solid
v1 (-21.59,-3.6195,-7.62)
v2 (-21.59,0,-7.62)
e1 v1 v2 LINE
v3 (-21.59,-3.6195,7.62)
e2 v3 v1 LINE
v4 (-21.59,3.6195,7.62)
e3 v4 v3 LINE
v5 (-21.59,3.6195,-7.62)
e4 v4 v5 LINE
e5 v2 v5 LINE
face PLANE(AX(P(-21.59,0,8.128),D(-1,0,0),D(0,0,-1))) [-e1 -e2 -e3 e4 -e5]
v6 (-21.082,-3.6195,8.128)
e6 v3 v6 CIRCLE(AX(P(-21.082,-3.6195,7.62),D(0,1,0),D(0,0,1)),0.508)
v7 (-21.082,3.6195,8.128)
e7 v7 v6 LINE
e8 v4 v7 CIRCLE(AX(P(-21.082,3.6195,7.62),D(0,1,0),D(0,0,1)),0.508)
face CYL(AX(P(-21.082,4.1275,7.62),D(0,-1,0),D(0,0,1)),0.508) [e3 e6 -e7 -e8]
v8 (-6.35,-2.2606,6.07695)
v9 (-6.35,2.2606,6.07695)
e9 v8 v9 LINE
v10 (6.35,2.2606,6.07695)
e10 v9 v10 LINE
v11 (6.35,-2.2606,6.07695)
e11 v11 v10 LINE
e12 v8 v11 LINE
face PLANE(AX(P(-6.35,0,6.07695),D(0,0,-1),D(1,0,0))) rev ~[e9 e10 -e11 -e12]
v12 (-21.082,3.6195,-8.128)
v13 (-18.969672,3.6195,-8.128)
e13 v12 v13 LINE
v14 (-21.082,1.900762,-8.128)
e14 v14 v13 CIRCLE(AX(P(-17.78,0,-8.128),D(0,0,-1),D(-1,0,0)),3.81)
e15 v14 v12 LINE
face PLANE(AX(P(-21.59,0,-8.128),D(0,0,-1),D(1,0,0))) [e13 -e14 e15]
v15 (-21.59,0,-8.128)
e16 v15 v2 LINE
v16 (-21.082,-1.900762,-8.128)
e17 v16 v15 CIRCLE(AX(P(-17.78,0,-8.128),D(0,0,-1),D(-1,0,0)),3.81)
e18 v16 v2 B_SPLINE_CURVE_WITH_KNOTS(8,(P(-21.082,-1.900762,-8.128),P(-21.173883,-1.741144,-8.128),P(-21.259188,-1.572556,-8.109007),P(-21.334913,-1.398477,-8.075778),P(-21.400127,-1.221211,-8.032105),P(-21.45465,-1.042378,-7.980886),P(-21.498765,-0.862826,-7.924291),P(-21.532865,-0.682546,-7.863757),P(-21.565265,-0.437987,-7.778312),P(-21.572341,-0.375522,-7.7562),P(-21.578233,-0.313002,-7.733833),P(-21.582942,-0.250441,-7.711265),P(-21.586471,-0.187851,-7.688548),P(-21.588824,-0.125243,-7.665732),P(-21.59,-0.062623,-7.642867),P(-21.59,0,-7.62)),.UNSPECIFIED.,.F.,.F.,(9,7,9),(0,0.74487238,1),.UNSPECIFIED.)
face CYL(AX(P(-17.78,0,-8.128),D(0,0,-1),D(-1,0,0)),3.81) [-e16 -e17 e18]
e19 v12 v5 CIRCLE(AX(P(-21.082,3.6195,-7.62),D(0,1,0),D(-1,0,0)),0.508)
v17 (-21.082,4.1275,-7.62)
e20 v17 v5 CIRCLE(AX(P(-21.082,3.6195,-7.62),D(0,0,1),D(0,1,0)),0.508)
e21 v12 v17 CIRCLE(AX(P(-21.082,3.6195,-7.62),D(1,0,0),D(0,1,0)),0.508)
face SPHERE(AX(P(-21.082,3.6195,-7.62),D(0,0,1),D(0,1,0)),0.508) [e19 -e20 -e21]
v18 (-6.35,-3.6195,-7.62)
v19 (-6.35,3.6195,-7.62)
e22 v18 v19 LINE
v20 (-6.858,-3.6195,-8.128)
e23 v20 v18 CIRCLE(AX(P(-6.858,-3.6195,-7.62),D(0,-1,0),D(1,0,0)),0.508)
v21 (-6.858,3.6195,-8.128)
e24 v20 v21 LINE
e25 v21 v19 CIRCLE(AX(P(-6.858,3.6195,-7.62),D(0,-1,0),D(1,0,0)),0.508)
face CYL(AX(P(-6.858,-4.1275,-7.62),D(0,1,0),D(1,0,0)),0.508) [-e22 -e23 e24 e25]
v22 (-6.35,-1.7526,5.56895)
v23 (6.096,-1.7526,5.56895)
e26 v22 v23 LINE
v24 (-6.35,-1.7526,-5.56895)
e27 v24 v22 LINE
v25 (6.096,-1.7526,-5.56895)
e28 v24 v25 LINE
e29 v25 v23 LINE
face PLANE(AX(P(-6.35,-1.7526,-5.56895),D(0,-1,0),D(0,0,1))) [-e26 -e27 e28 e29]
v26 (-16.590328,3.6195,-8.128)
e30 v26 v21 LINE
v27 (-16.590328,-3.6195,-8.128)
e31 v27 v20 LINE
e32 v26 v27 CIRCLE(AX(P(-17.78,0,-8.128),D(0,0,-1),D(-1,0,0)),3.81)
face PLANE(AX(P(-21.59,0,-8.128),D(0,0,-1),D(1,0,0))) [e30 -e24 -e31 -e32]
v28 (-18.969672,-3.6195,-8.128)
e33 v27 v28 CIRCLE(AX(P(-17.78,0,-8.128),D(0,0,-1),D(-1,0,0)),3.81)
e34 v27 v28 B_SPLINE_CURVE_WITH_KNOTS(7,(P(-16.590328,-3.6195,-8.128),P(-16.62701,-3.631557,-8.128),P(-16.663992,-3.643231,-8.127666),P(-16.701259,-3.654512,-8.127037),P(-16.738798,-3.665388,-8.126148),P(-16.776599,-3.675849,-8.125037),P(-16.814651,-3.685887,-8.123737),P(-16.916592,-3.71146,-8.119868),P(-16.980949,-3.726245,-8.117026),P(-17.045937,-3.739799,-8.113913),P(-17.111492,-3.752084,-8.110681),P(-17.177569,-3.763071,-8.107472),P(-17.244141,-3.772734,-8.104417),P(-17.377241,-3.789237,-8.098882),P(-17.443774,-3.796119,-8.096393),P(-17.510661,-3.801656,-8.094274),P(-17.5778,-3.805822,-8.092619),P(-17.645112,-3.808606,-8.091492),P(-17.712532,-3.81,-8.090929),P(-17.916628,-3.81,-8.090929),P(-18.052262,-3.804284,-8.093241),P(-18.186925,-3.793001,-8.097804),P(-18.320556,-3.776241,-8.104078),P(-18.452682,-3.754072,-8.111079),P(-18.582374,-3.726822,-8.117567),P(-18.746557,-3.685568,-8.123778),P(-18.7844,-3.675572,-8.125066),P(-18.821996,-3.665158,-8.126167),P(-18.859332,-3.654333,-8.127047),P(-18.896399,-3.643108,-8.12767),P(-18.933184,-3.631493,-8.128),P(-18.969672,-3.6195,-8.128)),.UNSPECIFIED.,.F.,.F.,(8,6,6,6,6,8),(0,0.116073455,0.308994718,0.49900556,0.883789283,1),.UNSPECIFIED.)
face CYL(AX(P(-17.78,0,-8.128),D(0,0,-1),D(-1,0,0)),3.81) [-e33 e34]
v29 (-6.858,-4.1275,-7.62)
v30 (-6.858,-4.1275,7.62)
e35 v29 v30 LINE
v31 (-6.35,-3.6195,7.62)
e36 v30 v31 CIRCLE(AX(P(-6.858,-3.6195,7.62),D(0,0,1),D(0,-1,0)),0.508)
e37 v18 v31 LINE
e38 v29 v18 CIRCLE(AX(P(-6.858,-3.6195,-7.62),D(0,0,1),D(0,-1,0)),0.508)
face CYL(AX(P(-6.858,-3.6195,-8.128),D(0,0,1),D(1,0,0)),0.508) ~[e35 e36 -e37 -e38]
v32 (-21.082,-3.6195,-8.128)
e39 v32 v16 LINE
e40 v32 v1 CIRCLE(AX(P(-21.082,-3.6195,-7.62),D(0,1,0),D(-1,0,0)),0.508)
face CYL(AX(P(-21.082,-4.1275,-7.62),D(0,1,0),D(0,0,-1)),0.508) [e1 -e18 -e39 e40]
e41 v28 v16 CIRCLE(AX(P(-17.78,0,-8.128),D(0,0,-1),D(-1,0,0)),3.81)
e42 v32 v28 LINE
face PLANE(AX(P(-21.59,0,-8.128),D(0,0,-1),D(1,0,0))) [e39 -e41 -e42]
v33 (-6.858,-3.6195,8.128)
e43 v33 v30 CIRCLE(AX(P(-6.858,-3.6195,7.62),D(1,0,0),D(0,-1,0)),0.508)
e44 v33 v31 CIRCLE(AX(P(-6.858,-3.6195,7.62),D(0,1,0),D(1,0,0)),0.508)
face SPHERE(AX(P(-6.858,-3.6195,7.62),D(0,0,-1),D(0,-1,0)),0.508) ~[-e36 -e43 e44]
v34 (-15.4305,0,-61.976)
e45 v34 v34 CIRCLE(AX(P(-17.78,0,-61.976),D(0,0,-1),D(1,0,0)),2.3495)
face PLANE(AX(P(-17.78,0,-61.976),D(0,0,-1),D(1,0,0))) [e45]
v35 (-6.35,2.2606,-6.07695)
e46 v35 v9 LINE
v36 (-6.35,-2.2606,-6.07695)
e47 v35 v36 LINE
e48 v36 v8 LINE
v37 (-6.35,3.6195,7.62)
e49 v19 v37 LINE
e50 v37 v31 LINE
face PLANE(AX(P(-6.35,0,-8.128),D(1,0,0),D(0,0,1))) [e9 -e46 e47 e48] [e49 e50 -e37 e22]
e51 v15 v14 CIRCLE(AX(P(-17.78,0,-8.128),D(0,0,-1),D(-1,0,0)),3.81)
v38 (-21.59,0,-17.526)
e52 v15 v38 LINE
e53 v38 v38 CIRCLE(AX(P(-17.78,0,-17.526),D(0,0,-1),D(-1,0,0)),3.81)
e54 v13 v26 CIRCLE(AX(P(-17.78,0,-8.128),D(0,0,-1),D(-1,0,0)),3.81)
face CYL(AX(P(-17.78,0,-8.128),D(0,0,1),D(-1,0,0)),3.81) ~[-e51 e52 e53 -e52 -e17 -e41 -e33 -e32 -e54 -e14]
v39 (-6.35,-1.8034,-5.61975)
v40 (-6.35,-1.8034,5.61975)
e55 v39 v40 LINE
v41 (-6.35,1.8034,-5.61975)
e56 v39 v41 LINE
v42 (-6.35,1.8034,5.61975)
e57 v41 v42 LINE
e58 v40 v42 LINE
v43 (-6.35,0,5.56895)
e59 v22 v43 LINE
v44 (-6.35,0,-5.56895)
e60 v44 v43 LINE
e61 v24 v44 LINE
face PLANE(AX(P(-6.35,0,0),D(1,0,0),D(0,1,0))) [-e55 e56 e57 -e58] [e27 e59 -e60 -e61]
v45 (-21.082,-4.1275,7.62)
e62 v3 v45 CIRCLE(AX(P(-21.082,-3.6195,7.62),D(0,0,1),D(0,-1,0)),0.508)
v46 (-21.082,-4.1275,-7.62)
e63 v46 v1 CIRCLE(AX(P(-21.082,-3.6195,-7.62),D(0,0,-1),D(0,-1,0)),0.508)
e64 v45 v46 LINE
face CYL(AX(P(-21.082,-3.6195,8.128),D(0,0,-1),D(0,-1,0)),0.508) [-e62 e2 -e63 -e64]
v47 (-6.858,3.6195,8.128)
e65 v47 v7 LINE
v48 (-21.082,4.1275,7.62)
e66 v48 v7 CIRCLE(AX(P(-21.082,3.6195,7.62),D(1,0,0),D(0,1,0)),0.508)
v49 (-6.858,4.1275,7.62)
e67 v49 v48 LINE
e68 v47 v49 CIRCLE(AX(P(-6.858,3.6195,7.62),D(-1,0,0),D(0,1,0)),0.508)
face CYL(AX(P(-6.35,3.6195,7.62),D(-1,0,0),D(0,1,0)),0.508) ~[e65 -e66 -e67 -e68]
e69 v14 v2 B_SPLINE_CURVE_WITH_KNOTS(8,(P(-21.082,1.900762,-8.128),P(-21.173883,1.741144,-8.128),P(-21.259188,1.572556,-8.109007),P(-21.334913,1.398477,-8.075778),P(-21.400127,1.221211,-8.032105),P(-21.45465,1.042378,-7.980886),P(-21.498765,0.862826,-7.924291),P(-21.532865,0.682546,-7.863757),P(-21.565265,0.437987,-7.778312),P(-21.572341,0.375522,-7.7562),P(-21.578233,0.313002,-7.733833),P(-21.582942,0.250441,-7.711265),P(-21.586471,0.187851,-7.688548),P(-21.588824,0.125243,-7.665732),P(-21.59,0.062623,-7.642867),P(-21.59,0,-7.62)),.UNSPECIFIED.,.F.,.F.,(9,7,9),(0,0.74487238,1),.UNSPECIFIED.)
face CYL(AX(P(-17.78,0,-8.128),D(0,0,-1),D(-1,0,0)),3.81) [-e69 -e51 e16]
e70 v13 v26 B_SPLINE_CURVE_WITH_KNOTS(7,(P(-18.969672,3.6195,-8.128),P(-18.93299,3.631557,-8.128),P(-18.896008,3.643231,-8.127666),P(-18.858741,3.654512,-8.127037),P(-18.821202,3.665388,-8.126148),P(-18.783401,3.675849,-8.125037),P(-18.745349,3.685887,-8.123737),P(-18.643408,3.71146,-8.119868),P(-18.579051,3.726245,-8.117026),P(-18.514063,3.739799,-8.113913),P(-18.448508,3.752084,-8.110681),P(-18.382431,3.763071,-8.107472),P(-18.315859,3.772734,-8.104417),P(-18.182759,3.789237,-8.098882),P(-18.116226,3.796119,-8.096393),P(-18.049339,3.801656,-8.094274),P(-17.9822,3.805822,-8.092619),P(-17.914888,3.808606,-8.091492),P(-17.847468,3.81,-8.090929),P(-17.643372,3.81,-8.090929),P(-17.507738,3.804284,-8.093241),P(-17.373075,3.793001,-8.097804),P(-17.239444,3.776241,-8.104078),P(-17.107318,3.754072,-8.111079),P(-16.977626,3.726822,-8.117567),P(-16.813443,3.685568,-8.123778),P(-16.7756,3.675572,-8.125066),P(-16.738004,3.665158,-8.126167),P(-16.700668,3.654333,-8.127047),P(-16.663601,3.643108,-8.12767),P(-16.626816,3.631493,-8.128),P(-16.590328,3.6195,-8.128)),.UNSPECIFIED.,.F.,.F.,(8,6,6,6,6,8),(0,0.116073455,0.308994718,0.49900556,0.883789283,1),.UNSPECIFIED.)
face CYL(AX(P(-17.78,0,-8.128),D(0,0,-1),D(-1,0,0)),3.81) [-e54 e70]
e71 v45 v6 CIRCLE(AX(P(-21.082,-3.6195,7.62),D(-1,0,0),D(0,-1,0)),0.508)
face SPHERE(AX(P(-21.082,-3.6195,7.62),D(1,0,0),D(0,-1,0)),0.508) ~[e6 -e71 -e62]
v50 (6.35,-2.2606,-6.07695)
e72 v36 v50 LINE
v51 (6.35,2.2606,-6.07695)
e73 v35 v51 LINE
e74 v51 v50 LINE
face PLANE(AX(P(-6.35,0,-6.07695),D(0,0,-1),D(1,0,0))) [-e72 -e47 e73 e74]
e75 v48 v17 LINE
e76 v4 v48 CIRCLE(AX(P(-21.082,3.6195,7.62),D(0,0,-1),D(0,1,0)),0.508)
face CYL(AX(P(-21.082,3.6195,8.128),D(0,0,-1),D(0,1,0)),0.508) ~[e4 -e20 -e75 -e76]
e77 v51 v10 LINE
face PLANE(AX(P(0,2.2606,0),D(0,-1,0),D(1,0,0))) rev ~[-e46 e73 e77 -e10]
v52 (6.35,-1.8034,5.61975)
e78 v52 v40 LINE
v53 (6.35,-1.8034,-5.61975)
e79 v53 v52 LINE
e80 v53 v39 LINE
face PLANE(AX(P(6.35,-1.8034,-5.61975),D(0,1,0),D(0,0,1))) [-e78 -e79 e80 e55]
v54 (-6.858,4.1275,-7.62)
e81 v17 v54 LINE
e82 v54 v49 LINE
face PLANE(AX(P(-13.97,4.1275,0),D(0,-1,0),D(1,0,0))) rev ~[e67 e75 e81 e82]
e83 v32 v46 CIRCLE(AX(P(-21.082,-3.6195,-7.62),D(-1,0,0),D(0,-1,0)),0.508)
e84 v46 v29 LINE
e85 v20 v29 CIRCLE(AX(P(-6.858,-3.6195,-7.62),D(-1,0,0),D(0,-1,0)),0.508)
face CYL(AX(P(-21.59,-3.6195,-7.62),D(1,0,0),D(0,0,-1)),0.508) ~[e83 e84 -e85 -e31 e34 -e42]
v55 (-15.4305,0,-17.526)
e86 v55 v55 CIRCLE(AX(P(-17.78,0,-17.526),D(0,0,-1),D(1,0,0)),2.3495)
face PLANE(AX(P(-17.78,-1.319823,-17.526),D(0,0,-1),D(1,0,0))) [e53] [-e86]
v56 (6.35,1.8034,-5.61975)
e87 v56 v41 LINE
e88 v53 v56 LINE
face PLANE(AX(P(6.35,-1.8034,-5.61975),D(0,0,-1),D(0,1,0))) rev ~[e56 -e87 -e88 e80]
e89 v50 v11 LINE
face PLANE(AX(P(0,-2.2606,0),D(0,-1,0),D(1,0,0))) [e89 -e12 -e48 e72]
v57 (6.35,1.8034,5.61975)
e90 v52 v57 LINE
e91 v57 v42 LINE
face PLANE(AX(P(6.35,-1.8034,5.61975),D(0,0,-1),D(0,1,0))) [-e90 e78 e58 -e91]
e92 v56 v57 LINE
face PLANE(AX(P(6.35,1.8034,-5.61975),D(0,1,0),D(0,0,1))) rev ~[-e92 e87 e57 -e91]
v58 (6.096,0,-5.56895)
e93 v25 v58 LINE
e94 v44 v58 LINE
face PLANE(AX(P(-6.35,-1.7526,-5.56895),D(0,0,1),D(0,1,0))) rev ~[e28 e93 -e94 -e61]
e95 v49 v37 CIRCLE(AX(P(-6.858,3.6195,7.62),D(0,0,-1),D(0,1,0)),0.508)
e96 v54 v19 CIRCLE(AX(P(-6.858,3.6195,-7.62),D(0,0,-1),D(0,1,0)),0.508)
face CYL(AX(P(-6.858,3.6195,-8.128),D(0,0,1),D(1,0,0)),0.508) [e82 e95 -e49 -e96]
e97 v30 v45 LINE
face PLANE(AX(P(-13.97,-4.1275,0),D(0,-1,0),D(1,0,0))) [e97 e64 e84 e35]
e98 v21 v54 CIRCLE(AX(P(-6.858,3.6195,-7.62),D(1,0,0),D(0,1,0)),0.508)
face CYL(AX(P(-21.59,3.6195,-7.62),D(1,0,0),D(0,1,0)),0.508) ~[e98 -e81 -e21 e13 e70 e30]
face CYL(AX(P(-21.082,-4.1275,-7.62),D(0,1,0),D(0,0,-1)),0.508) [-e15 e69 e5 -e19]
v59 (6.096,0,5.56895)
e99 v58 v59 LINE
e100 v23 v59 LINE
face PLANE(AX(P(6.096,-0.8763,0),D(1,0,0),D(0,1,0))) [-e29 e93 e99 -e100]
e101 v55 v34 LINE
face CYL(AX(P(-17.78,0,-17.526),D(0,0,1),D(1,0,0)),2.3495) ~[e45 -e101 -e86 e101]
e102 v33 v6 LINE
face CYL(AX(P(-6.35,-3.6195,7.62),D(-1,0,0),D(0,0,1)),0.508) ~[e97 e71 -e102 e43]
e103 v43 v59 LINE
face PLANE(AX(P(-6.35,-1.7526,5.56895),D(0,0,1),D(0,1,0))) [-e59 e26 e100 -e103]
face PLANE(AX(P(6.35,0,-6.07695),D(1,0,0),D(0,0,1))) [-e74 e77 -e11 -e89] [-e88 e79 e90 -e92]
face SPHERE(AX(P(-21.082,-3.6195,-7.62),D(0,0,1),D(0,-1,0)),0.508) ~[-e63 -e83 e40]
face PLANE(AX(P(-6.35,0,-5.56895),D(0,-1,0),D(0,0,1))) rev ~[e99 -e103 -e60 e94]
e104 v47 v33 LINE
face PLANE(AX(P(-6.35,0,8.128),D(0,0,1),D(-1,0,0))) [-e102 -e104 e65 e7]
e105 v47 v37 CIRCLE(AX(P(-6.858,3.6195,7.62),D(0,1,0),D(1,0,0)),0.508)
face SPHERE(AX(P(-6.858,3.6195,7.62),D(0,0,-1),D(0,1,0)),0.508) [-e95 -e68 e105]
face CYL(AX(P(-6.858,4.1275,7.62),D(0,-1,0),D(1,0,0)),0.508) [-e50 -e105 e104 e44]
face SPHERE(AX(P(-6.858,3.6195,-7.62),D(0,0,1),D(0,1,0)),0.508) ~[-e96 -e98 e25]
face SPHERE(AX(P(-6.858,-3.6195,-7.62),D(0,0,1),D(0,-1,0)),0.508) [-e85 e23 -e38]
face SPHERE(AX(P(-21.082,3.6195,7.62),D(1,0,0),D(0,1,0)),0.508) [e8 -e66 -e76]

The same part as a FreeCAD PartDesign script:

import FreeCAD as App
import Part
import Sketcher
Q = App.Units.Quantity


def edges_at(feature, points):
    """Names of the edges that pass closest to the given points."""
    edges = feature.Shape.Edges
    near = lambda p: min(range(len(edges)), key=lambda i: edges[i].distToShape(Part.Vertex(*p))[0])
    return sorted({f"Edge{near(p) + 1}" for p in points})

doc = App.newDocument("Part")
body = doc.addObject("PartDesign::Body", "Body")

# Sketch on XZ plane
sketch1 = body.newObject("Sketcher::SketchObject", "Sketch")
sketch1.AttachmentSupport = (doc.getObject("XZ_Plane"), [""])
sketch1.MapMode = "FlatFace"
sketch1.addGeometry(Part.LineSegment(App.Vector(-6, 6, 0), App.Vector(-6, -6, 0)), False)
sketch1.addGeometry(Part.LineSegment(App.Vector(-6, -6, 0), App.Vector(6, -6, 0)), False)
sketch1.addGeometry(Part.LineSegment(App.Vector(6, -6, 0), App.Vector(6, 6, 0)), False)
sketch1.addGeometry(Part.LineSegment(App.Vector(6, 6, 0), App.Vector(-6, 6, 0)), False)
sketch1.addConstraint(Sketcher.Constraint("Coincident", 0, 2, 1, 1))
sketch1.addConstraint(Sketcher.Constraint("Coincident", 1, 2, 2, 1))
sketch1.addConstraint(Sketcher.Constraint("Coincident", 2, 2, 3, 1))
sketch1.addConstraint(Sketcher.Constraint("Coincident", 3, 2, 0, 1))
sketch1.addConstraint(Sketcher.Constraint("Vertical", 0))
sketch1.addConstraint(Sketcher.Constraint("Horizontal", 1))
sketch1.addConstraint(Sketcher.Constraint("Vertical", 2))
sketch1.addConstraint(Sketcher.Constraint("Horizontal", 3))
sketch1.addConstraint(Sketcher.Constraint("Symmetric", 0, 2, 2, 2, -1, 1))
sketch1.addConstraint(Sketcher.Constraint("DistanceX", 1, 1, 1, 2, Q("0.5 in")))
sketch1.addConstraint(Sketcher.Constraint("DistanceY", 0, 2, 0, 1, Q("0.4785 in")))
pad1 = body.newObject("PartDesign::Pad", "Pad")
pad1.Profile = sketch1
pad1.Length = Q("0.178 in")
pad1.Midplane = True

# Sketch on XZ plane
sketch2 = body.newObject("Sketcher::SketchObject", "Sketch001")
sketch2.AttachmentSupport = (doc.getObject("XZ_Plane"), [""])
sketch2.MapMode = "FlatFace"
sketch2.addGeometry(Part.LineSegment(App.Vector(-6, -8, 0), App.Vector(-6, 8, 0)), False)
sketch2.addGeometry(Part.LineSegment(App.Vector(-6, 8, 0), App.Vector(-22, 8, 0)), False)
sketch2.addGeometry(Part.LineSegment(App.Vector(-22, 8, 0), App.Vector(-22, -8, 0)), False)
sketch2.addGeometry(Part.LineSegment(App.Vector(-22, -8, 0), App.Vector(-6, -8, 0)), False)
sketch2.addConstraint(Sketcher.Constraint("Coincident", 0, 2, 1, 1))
sketch2.addConstraint(Sketcher.Constraint("Coincident", 1, 2, 2, 1))
sketch2.addConstraint(Sketcher.Constraint("Coincident", 2, 2, 3, 1))
sketch2.addConstraint(Sketcher.Constraint("Coincident", 3, 2, 0, 1))
sketch2.addConstraint(Sketcher.Constraint("Vertical", 0))
sketch2.addConstraint(Sketcher.Constraint("Horizontal", 1))
sketch2.addConstraint(Sketcher.Constraint("Vertical", 2))
sketch2.addConstraint(Sketcher.Constraint("Horizontal", 3))
sketch2.addConstraint(Sketcher.Constraint("DistanceX", 1, 2, 1, 1, Q("0.6 in")))
sketch2.addConstraint(Sketcher.Constraint("DistanceY", 0, 1, 0, 2, Q("0.64 in")))
sketch2.addConstraint(Sketcher.Constraint("DistanceX", 0, 2, -1, 1, Q("0.25 in")))
sketch2.addConstraint(Sketcher.Constraint("DistanceY", -1, 1, 0, 2, Q("0.32 in")))
pad2 = body.newObject("PartDesign::Pad", "Pad001")
pad2.Profile = sketch2
pad2.Length = Q("0.325 in")
pad2.Midplane = True

# Sketch on YZ plane
sketch3 = body.newObject("Sketcher::SketchObject", "Sketch002")
sketch3.AttachmentSupport = (doc.getObject("YZ_Plane"), [""])
sketch3.MapMode = "FlatFace"
sketch3.AttachmentOffset = App.Placement(App.Vector(0, 0, 0.25 * 25.4), App.Rotation())
sketch3.addGeometry(Part.LineSegment(App.Vector(-1.8, 5.6, 0), App.Vector(-1.8, -5.6, 0)), False)
sketch3.addGeometry(Part.LineSegment(App.Vector(-1.8, -5.6, 0), App.Vector(1.8, -5.6, 0)), False)
sketch3.addGeometry(Part.LineSegment(App.Vector(1.8, -5.6, 0), App.Vector(1.8, 5.6, 0)), False)
sketch3.addGeometry(Part.LineSegment(App.Vector(1.8, 5.6, 0), App.Vector(-1.8, 5.6, 0)), False)
sketch3.addConstraint(Sketcher.Constraint("Coincident", 0, 2, 1, 1))
sketch3.addConstraint(Sketcher.Constraint("Coincident", 1, 2, 2, 1))
sketch3.addConstraint(Sketcher.Constraint("Coincident", 2, 2, 3, 1))
sketch3.addConstraint(Sketcher.Constraint("Coincident", 3, 2, 0, 1))
sketch3.addConstraint(Sketcher.Constraint("Vertical", 0))
sketch3.addConstraint(Sketcher.Constraint("Horizontal", 1))
sketch3.addConstraint(Sketcher.Constraint("Vertical", 2))
sketch3.addConstraint(Sketcher.Constraint("Horizontal", 3))
sketch3.addConstraint(Sketcher.Constraint("Symmetric", 0, 2, 2, 2, -1, 1))
sketch3.addConstraint(Sketcher.Constraint("DistanceX", 1, 1, 1, 2, Q("0.142 in")))
sketch3.addConstraint(Sketcher.Constraint("DistanceY", 0, 2, 0, 1, Q("0.4425 in")))
pocket1 = body.newObject("PartDesign::Pocket", "Pocket")
pocket1.Profile = sketch3
pocket1.Length = Q("0.5 in")

# Sketch on YZ plane
sketch4 = body.newObject("Sketcher::SketchObject", "Sketch003")
sketch4.AttachmentSupport = (doc.getObject("YZ_Plane"), [""])
sketch4.MapMode = "FlatFace"
sketch4.AttachmentOffset = App.Placement(App.Vector(0, 0, 0.25 * 25.4), App.Rotation())
sketch4.addGeometry(Part.LineSegment(App.Vector(-1.8, 5.6, 0), App.Vector(-1.8, -5.6, 0)), False)
sketch4.addGeometry(Part.LineSegment(App.Vector(-1.8, -5.6, 0), App.Vector(1.8, -5.6, 0)), False)
sketch4.addGeometry(Part.LineSegment(App.Vector(1.8, -5.6, 0), App.Vector(1.8, 5.6, 0)), False)
sketch4.addGeometry(Part.LineSegment(App.Vector(1.8, 5.6, 0), App.Vector(-1.8, 5.6, 0)), False)
sketch4.addConstraint(Sketcher.Constraint("Coincident", 0, 2, 1, 1))
sketch4.addConstraint(Sketcher.Constraint("Coincident", 1, 2, 2, 1))
sketch4.addConstraint(Sketcher.Constraint("Coincident", 2, 2, 3, 1))
sketch4.addConstraint(Sketcher.Constraint("Coincident", 3, 2, 0, 1))
sketch4.addConstraint(Sketcher.Constraint("Vertical", 0))
sketch4.addConstraint(Sketcher.Constraint("Horizontal", 1))
sketch4.addConstraint(Sketcher.Constraint("Vertical", 2))
sketch4.addConstraint(Sketcher.Constraint("Horizontal", 3))
sketch4.addConstraint(Sketcher.Constraint("Symmetric", 0, 2, 2, 2, -1, 1))
sketch4.addConstraint(Sketcher.Constraint("DistanceX", 1, 1, 1, 2, Q("0.142 in")))
sketch4.addConstraint(Sketcher.Constraint("DistanceY", 0, 2, 0, 1, Q("0.4425 in")))
pocket2 = body.newObject("PartDesign::Pocket", "Pocket001")
pocket2.Profile = sketch4
pocket2.Length = Q("0.5 in")
doc.recompute()

fillet = body.newObject("PartDesign::Fillet", "Fillet")
fillet.Base = (pocket2, edges_at(pocket2, [
    (-6.35, -4.128, 0),
    (-13.97, -4.128, 8.128),
    (-21.59, -4.128, 0),
    (-13.97, -4.128, -8.128),
    (-6.35, 4.128, 0),
    (-13.97, 4.128, 8.128),
    (-21.59, 4.128, 0),
    (-13.97, 4.128, -8.128),
    (-21.59, 0, -8.128),
    (-21.59, 0, 8.128),
    (-6.35, 0, 8.128),
    (-6.35, 0, -8.128),
]))
fillet.Radius = Q("0.02 in")

# Sketch on YZ plane
sketch5 = body.newObject("Sketcher::SketchObject", "Sketch004")
sketch5.AttachmentSupport = (doc.getObject("YZ_Plane"), [""])
sketch5.MapMode = "FlatFace"
sketch5.AttachmentOffset = App.Placement(App.Vector(0, 0, -0.25 * 25.4), App.Rotation())
sketch5.addGeometry(Part.LineSegment(App.Vector(-1.8, 5.6, 0), App.Vector(-1.8, -5.6, 0)), False)
sketch5.addGeometry(Part.LineSegment(App.Vector(-1.8, -5.6, 0), App.Vector(0, -5.6, 0)), False)
sketch5.addGeometry(Part.LineSegment(App.Vector(0, -5.6, 0), App.Vector(0, 5.6, 0)), False)
sketch5.addGeometry(Part.LineSegment(App.Vector(0, 5.6, 0), App.Vector(-1.8, 5.6, 0)), False)
sketch5.addConstraint(Sketcher.Constraint("Coincident", 0, 2, 1, 1))
sketch5.addConstraint(Sketcher.Constraint("Coincident", 1, 2, 2, 1))
sketch5.addConstraint(Sketcher.Constraint("Coincident", 2, 2, 3, 1))
sketch5.addConstraint(Sketcher.Constraint("Coincident", 3, 2, 0, 1))
sketch5.addConstraint(Sketcher.Constraint("Vertical", 0))
sketch5.addConstraint(Sketcher.Constraint("Horizontal", 1))
sketch5.addConstraint(Sketcher.Constraint("Vertical", 2))
sketch5.addConstraint(Sketcher.Constraint("Horizontal", 3))
sketch5.addConstraint(Sketcher.Constraint("Symmetric", 1, 2, 2, 2, -1, 1))
sketch5.addConstraint(Sketcher.Constraint("DistanceX", 1, 1, 1, 2, Q("0.069 in")))
sketch5.addConstraint(Sketcher.Constraint("DistanceY", 0, 2, 0, 1, Q("0.4385 in")))
pad3 = body.newObject("PartDesign::Pad", "Pad002")
pad3.Profile = sketch5
pad3.Length = Q("0.49 in")

# Sketch on XY plane
sketch6 = body.newObject("Sketcher::SketchObject", "Sketch005")
sketch6.AttachmentSupport = (doc.getObject("XY_Plane"), [""])
sketch6.MapMode = "FlatFace"
sketch6.AttachmentOffset = App.Placement(App.Vector(0, 0, -0.32 * 25.4), App.Rotation())
sketch6.addGeometry(Part.Circle(App.Vector(-17.8, 0, 0), App.Vector(0, 0, 1), 3.8), False)
sketch6.addConstraint(Sketcher.Constraint("PointOnObject", 0, 3, -1))
sketch6.addConstraint(Sketcher.Constraint("Diameter", 0, Q("0.3 in")))
sketch6.addConstraint(Sketcher.Constraint("DistanceX", 0, 3, -1, 1, Q("0.7 in")))
pad4 = body.newObject("PartDesign::Pad", "Pad003")
pad4.Profile = sketch6
pad4.Type = "TwoLengths"
pad4.Length = Q("0.37 in")
pad4.Length2 = Q("0.02 in")
pad4.Reversed = True

# Sketch on XY plane
sketch7 = body.newObject("Sketcher::SketchObject", "Sketch006")
sketch7.AttachmentSupport = (doc.getObject("XY_Plane"), [""])
sketch7.MapMode = "FlatFace"
sketch7.AttachmentOffset = App.Placement(App.Vector(0, 0, -0.69 * 25.4), App.Rotation())
sketch7.addGeometry(Part.Circle(App.Vector(-17.8, 0, 0), App.Vector(0, 0, 1), 2.3), False)
sketch7.addConstraint(Sketcher.Constraint("PointOnObject", 0, 3, -1))
sketch7.addConstraint(Sketcher.Constraint("Diameter", 0, Q("0.185 in")))
sketch7.addConstraint(Sketcher.Constraint("DistanceX", 0, 3, -1, 1, Q("0.7 in")))
pad5 = body.newObject("PartDesign::Pad", "Pad004")
pad5.Profile = sketch7
pad5.Length = Q("1.75 in")
pad5.Reversed = True

doc.recompute()
